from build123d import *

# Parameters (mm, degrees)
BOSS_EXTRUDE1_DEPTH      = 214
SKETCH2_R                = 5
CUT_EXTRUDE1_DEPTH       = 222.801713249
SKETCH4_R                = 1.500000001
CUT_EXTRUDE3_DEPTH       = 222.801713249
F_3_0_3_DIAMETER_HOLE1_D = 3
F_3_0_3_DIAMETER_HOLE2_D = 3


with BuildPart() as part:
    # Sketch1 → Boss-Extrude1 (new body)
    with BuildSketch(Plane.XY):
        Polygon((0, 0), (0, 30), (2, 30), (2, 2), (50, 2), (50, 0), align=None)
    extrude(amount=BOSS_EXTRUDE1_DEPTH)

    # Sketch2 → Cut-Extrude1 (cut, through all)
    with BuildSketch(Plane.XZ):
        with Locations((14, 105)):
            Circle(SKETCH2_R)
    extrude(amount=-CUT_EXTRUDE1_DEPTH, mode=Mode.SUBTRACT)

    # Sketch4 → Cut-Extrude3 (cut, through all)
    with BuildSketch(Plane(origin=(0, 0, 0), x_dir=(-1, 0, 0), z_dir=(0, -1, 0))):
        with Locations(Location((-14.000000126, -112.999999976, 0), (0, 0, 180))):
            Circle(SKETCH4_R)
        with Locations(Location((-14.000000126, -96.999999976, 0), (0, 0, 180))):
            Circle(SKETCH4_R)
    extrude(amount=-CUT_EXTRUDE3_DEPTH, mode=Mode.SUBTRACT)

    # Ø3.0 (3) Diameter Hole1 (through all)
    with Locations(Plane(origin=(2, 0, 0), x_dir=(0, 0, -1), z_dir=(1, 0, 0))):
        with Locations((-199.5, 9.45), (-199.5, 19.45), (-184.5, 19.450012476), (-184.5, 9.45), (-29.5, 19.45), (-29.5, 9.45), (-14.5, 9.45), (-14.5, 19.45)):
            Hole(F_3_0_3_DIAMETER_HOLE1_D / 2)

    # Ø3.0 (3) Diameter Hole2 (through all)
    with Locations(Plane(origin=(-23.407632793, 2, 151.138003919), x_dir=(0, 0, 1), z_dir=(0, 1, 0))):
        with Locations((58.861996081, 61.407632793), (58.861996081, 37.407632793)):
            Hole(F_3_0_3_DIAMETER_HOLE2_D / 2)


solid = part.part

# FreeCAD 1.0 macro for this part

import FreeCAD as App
import Part
import Sketcher
from FreeCAD import Vector

doc = App.newDocument("Part")
body = doc.addObject("PartDesign::Body", "Body")

sketch1 = body.newObject("Sketcher::SketchObject", "Sketch")
sketch1.AttachmentSupport = (doc.getObject("XY_Plane"), [""])
sketch1.MapMode = "FlatFace"
sketch1.addGeometry([
    Part.LineSegment(Vector(0, 30, 0), Vector(0, 0, 0)),
    Part.LineSegment(Vector(0, 0, 0), Vector(50, 0, 0)),
    Part.LineSegment(Vector(50, 0, 0), Vector(50, 2, 0)),
    Part.LineSegment(Vector(50, 2, 0), Vector(2, 2, 0)),
    Part.LineSegment(Vector(2, 2, 0), Vector(2, 30, 0)),
    Part.LineSegment(Vector(2, 30, 0), Vector(0, 30, 0)),
], False)
sketch1.addConstraint([
    Sketcher.Constraint("Coincident", 0, 2, 1, 1),
    Sketcher.Constraint("Coincident", 1, 2, 2, 1),
    Sketcher.Constraint("Coincident", 2, 2, 3, 1),
    Sketcher.Constraint("Coincident", 3, 2, 4, 1),
    Sketcher.Constraint("Coincident", 4, 2, 5, 1),
    Sketcher.Constraint("Coincident", 5, 2, 0, 1),
    Sketcher.Constraint("Vertical", 0),
    Sketcher.Constraint("Horizontal", 1),
    Sketcher.Constraint("Vertical", 2),
    Sketcher.Constraint("Horizontal", 3),
    Sketcher.Constraint("Vertical", 4),
    Sketcher.Constraint("Horizontal", 5),
    Sketcher.Constraint("Coincident", 0, 2, -1, 1),
    Sketcher.Constraint("Equal", 5, 2),
    Sketcher.Constraint("DistanceX", 1, 1, 1, 2, 50.0),
    Sketcher.Constraint("DistanceX", 3, 2, 3, 1, 48.0),
    Sketcher.Constraint("DistanceY", 0, 2, 0, 1, 30.0),
])
pad1 = body.newObject("PartDesign::Pad", "Pad")
pad1.Profile = sketch1
pad1.Length = 214

sketch2 = body.newObject("Sketcher::SketchObject", "Sketch001")
sketch2.AttachmentSupport = (doc.getObject("XZ_Plane"), [""])
sketch2.MapMode = "FlatFace"
sketch2.addGeometry(Part.Circle(Vector(14, 105, 0), Vector(0, 0, 1), 5), False)
sketch2.addConstraint([
    Sketcher.Constraint("Diameter", 0, 10.0),
    Sketcher.Constraint("DistanceX", -1, 1, 0, 3, 14.0),
    Sketcher.Constraint("DistanceY", -1, 1, 0, 3, 105.0),
])
pocket1 = body.newObject("PartDesign::Pocket", "Pocket")
pocket1.Profile = sketch2
pocket1.Type = "ThroughAll"

sketch3 = body.newObject("Sketcher::SketchObject", "Sketch002")
sketch3.AttachmentSupport = (doc.getObject("XZ_Plane"), [""])
sketch3.MapMode = "FlatFace"
sketch3.addGeometry([
    Part.Circle(Vector(14, 113, 0), Vector(0, 0, 1), 1.5),
    Part.Circle(Vector(14, 97, 0), Vector(0, 0, 1), 1.5),
], False)
sketch3.addConstraint([
    Sketcher.Constraint("Equal", 0, 1),
    Sketcher.Constraint("Vertical", 0, 3, 1, 3),
    Sketcher.Constraint("Diameter", 0, 3.0),
    Sketcher.Constraint("DistanceX", -1, 1, 0, 3, 14.0),
    Sketcher.Constraint("DistanceY", -1, 1, 0, 3, 113.0),
    Sketcher.Constraint("DistanceY", -1, 1, 1, 3, 97.0),
])
pocket2 = body.newObject("PartDesign::Pocket", "Pocket001")
pocket2.Profile = sketch3
pocket2.Type = "ThroughAll"

sketch4 = body.newObject("Sketcher::SketchObject", "Sketch003")
sketch4.AttachmentSupport = (doc.getObject("YZ_Plane"), [""])
sketch4.MapMode = "FlatFace"
sketch4.AttachmentOffset = App.Placement(Vector(0, 0, 2), App.Rotation())
sketch4.addGeometry([
    Part.Circle(Vector(9.45, 199.5, 0), Vector(0, 0, 1), 1.5),
    Part.Circle(Vector(19.45, 199.5, 0), Vector(0, 0, 1), 1.5),
    Part.Circle(Vector(19.450012, 184.5, 0), Vector(0, 0, 1), 1.5),
    Part.Circle(Vector(9.45, 184.5, 0), Vector(0, 0, 1), 1.5),
    Part.Circle(Vector(19.45, 29.5, 0), Vector(0, 0, 1), 1.5),
    Part.Circle(Vector(9.45, 29.5, 0), Vector(0, 0, 1), 1.5),
    Part.Circle(Vector(9.45, 14.5, 0), Vector(0, 0, 1), 1.5),
    Part.Circle(Vector(19.45, 14.5, 0), Vector(0, 0, 1), 1.5),
], False)
sketch4.addConstraint([
    Sketcher.Constraint("Equal", 0, 1),
    Sketcher.Constraint("Equal", 1, 2),
    Sketcher.Constraint("Equal", 2, 3),
    Sketcher.Constraint("Equal", 3, 4),
    Sketcher.Constraint("Equal", 4, 5),
    Sketcher.Constraint("Equal", 5, 6),
    Sketcher.Constraint("Equal", 6, 7),
    Sketcher.Constraint("Horizontal", 0, 3, 1, 3),
    Sketcher.Constraint("Horizontal", 2, 3, 3, 3),
    Sketcher.Constraint("Horizontal", 4, 3, 5, 3),
    Sketcher.Constraint("Horizontal", 6, 3, 7, 3),
    Sketcher.Constraint("Vertical", 0, 3, 3, 3),
    Sketcher.Constraint("Vertical", 1, 3, 4, 3),
    Sketcher.Constraint("Vertical", 3, 3, 5, 3),
    Sketcher.Constraint("Vertical", 5, 3, 6, 3),
    Sketcher.Constraint("Vertical", 4, 3, 7, 3),
    Sketcher.Constraint("Diameter", 0, 3.0),
    Sketcher.Constraint("DistanceX", 0, 3, 1, 3, 10.0),
    Sketcher.Constraint("DistanceY", 2, 3, 1, 3, 15.0),
    Sketcher.Constraint("DistanceY", 4, 3, 2, 3, 155.0),
    Sketcher.Constraint("DistanceY", 6, 3, 5, 3, 15.0),
    Sketcher.Constraint("DistanceY", -1, 1, 0, 3, 199.5),
    Sketcher.Constraint("DistanceX", -1, 1, 0, 3, 9.45),
    Sketcher.Constraint("DistanceX", -1, 1, 2, 3, 19.450012),
])
doc.recompute()
hole = body.newObject("PartDesign::Hole", "Hole")
hole.Profile = sketch4
hole.ThreadType = "None"
hole.Diameter = 3
hole.DepthType = "ThroughAll"

sketch5 = body.newObject("Sketcher::SketchObject", "Sketch004")
sketch5.AttachmentSupport = (doc.getObject("XZ_Plane"), [""])
sketch5.MapMode = "FlatFace"
sketch5.AttachmentOffset = App.Placement(Vector(0, 0, -2), App.Rotation())
sketch5.addGeometry([
    Part.Circle(Vector(38, 210, 0), Vector(0, 0, 1), 1.5),
    Part.Circle(Vector(14, 210, 0), Vector(0, 0, 1), 1.5),
], False)
sketch5.addConstraint([
    Sketcher.Constraint("Equal", 0, 1),
    Sketcher.Constraint("Horizontal", 0, 3, 1, 3),
    Sketcher.Constraint("Diameter", 0, 3.0),
    Sketcher.Constraint("DistanceX", -1, 1, 0, 3, 38.0),
    Sketcher.Constraint("DistanceY", -1, 1, 0, 3, 210.0),
    Sketcher.Constraint("DistanceX", -1, 1, 1, 3, 14.0),
])
doc.recompute()
hole2 = body.newObject("PartDesign::Hole", "Hole001")
hole2.Profile = sketch5
hole2.ThreadType = "None"
hole2.Diameter = 3
hole2.DepthType = "ThroughAll"
hole2.Reversed = True

doc.recompute()
